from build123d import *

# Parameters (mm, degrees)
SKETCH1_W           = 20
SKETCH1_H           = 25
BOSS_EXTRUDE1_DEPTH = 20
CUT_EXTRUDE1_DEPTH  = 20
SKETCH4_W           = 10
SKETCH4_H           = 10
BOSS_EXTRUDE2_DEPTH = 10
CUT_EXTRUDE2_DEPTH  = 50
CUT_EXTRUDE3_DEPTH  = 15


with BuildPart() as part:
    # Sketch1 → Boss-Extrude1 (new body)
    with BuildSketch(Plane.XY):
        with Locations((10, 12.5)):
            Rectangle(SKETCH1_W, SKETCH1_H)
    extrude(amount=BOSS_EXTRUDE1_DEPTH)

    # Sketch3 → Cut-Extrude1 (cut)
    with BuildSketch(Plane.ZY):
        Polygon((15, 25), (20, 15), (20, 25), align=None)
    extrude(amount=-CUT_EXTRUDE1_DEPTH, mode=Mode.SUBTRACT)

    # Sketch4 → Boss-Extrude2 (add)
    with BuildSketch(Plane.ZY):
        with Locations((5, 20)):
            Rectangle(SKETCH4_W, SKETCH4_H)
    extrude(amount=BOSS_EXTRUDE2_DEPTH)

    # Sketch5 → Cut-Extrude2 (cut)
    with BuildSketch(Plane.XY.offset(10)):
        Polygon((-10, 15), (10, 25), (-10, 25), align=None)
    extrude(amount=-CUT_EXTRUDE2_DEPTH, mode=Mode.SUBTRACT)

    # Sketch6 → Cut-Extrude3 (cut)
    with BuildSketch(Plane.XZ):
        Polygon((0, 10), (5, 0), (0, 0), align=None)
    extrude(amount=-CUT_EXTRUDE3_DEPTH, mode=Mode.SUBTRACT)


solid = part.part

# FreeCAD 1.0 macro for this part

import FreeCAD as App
import Part
import Sketcher

V = App.Vector

doc = App.newDocument("Part")
body = doc.addObject("PartDesign::Body", "Body")

# Sketch on XY plane
sketch1 = body.newObject("Sketcher::SketchObject", "Sketch")
sketch1.AttachmentSupport = (doc.getObject("XY_Plane"), [""])
sketch1.MapMode = "FlatFace"
sketch1.addGeometry([
    Part.LineSegment(V(0, 25, 0), V(0, 0, 0)),
    Part.LineSegment(V(0, 0, 0), V(20, 0, 0)),
    Part.LineSegment(V(20, 0, 0), V(20, 25, 0)),
    Part.LineSegment(V(20, 25, 0), V(0, 25, 0)),
], False)
sketch1.addConstraint([
    Sketcher.Constraint("Coincident", 0, 2, 1, 1),
    Sketcher.Constraint("Coincident", 1, 2, 2, 1),
    Sketcher.Constraint("Coincident", 2, 2, 3, 1),
    Sketcher.Constraint("Coincident", 3, 2, 0, 1),
    Sketcher.Constraint("Vertical", 0),
    Sketcher.Constraint("Horizontal", 1),
    Sketcher.Constraint("Vertical", 2),
    Sketcher.Constraint("Horizontal", 3),
    Sketcher.Constraint("Coincident", 0, 2, -1, 1),
    Sketcher.Constraint("DistanceX", 1, 1, 1, 2, 20.0),
    Sketcher.Constraint("DistanceY", 0, 2, 0, 1, 25.0),
])
pad1 = body.newObject("PartDesign::Pad", "Pad")
pad1.Profile = sketch1
pad1.Length = 20

# Sketch on YZ plane
sketch2 = body.newObject("Sketcher::SketchObject", "Sketch001")
sketch2.AttachmentSupport = (doc.getObject("YZ_Plane"), [""])
sketch2.MapMode = "FlatFace"
sketch2.addGeometry([
    Part.LineSegment(V(25, 15, 0), V(15, 20, 0)),
    Part.LineSegment(V(15, 20, 0), V(25, 20, 0)),
    Part.LineSegment(V(25, 20, 0), V(25, 15, 0)),
], False)
sketch2.addConstraint([
    Sketcher.Constraint("Coincident", 0, 2, 1, 1),
    Sketcher.Constraint("Coincident", 1, 2, 2, 1),
    Sketcher.Constraint("Coincident", 2, 2, 0, 1),
    Sketcher.Constraint("Horizontal", 1),
    Sketcher.Constraint("Vertical", 2),
    Sketcher.Constraint("DistanceX", 1, 1, 1, 2, 10.0),
    Sketcher.Constraint("DistanceY", 2, 2, 2, 1, 5.0),
    Sketcher.Constraint("DistanceX", -1, 1, 0, 2, 15.0),
    Sketcher.Constraint("DistanceY", -1, 1, 0, 2, 20.0),
])
pocket1 = body.newObject("PartDesign::Pocket", "Pocket")
pocket1.Profile = sketch2
pocket1.Length = 20
pocket1.Reversed = True

# Sketch on YZ plane
sketch3 = body.newObject("Sketcher::SketchObject", "Sketch002")
sketch3.AttachmentSupport = (doc.getObject("YZ_Plane"), [""])
sketch3.MapMode = "FlatFace"
sketch3.addGeometry([
    Part.LineSegment(V(25, 0, 0), V(15, 0, 0)),
    Part.LineSegment(V(15, 0, 0), V(15, 10, 0)),
    Part.LineSegment(V(15, 10, 0), V(25, 10, 0)),
    Part.LineSegment(V(25, 10, 0), V(25, 0, 0)),
], False)
sketch3.addConstraint([
    Sketcher.Constraint("Coincident", 0, 2, 1, 1),
    Sketcher.Constraint("Coincident", 1, 2, 2, 1),
    Sketcher.Constraint("Coincident", 2, 2, 3, 1),
    Sketcher.Constraint("Coincident", 3, 2, 0, 1),
    Sketcher.Constraint("Horizontal", 0),
    Sketcher.Constraint("Vertical", 1),
    Sketcher.Constraint("Horizontal", 2),
    Sketcher.Constraint("Vertical", 3),
    Sketcher.Constraint("PointOnObject", 0, 2, -1),
    Sketcher.Constraint("Equal", 2, 1),
    Sketcher.Constraint("DistanceX", 0, 2, 0, 1, 10.0),
    Sketcher.Constraint("DistanceX", -1, 1, 0, 2, 15.0),
])
pad2 = body.newObject("PartDesign::Pad", "Pad001")
pad2.Profile = sketch3
pad2.Length = 10
pad2.Reversed = True

# Sketch on XY plane
sketch4 = body.newObject("Sketcher::SketchObject", "Sketch003")
sketch4.AttachmentSupport = (doc.getObject("XY_Plane"), [""])
sketch4.MapMode = "FlatFace"
sketch4.AttachmentOffset = App.Placement(V(0, 0, 10), App.Rotation())
sketch4.addGeometry([
    Part.LineSegment(V(-10, 15, 0), V(10, 25, 0)),
    Part.LineSegment(V(10, 25, 0), V(-10, 25, 0)),
    Part.LineSegment(V(-10, 25, 0), V(-10, 15, 0)),
], False)
sketch4.addConstraint([
    Sketcher.Constraint("Coincident", 0, 2, 1, 1),
    Sketcher.Constraint("Coincident", 1, 2, 2, 1),
    Sketcher.Constraint("Coincident", 2, 2, 0, 1),
    Sketcher.Constraint("Horizontal", 1),
    Sketcher.Constraint("Vertical", 2),
    Sketcher.Constraint("DistanceX", 1, 2, 1, 1, 20.0),
    Sketcher.Constraint("DistanceY", 2, 2, 2, 1, 10.0),
    Sketcher.Constraint("DistanceX", -1, 1, 0, 2, 10.0),
    Sketcher.Constraint("DistanceY", -1, 1, 0, 2, 25.0),
])
pocket2 = body.newObject("PartDesign::Pocket", "Pocket001")
pocket2.Profile = sketch4
pocket2.Length = 50

# Sketch on XZ plane
sketch5 = body.newObject("Sketcher::SketchObject", "Sketch004")
sketch5.AttachmentSupport = (doc.getObject("XZ_Plane"), [""])
sketch5.MapMode = "FlatFace"
sketch5.addGeometry([
    Part.LineSegment(V(5, 0, 0), V(0, 10, 0)),
    Part.LineSegment(V(0, 10, 0), V(0, 0, 0)),
    Part.LineSegment(V(0, 0, 0), V(5, 0, 0)),
], False)
sketch5.addConstraint([
    Sketcher.Constraint("Coincident", 0, 2, 1, 1),
    Sketcher.Constraint("Coincident", 1, 2, 2, 1),
    Sketcher.Constraint("Coincident", 2, 2, 0, 1),
    Sketcher.Constraint("Vertical", 1),
    Sketcher.Constraint("Horizontal", 2),
    Sketcher.Constraint("Coincident", 1, 2, -1, 1),
    Sketcher.Constraint("DistanceX", 2, 1, 2, 2, 5.0),
    Sketcher.Constraint("DistanceY", 1, 2, 1, 1, 10.0),
])
pocket3 = body.newObject("PartDesign::Pocket", "Pocket002")
pocket3.Profile = sketch5
pocket3.Length = 15

doc.recompute()
